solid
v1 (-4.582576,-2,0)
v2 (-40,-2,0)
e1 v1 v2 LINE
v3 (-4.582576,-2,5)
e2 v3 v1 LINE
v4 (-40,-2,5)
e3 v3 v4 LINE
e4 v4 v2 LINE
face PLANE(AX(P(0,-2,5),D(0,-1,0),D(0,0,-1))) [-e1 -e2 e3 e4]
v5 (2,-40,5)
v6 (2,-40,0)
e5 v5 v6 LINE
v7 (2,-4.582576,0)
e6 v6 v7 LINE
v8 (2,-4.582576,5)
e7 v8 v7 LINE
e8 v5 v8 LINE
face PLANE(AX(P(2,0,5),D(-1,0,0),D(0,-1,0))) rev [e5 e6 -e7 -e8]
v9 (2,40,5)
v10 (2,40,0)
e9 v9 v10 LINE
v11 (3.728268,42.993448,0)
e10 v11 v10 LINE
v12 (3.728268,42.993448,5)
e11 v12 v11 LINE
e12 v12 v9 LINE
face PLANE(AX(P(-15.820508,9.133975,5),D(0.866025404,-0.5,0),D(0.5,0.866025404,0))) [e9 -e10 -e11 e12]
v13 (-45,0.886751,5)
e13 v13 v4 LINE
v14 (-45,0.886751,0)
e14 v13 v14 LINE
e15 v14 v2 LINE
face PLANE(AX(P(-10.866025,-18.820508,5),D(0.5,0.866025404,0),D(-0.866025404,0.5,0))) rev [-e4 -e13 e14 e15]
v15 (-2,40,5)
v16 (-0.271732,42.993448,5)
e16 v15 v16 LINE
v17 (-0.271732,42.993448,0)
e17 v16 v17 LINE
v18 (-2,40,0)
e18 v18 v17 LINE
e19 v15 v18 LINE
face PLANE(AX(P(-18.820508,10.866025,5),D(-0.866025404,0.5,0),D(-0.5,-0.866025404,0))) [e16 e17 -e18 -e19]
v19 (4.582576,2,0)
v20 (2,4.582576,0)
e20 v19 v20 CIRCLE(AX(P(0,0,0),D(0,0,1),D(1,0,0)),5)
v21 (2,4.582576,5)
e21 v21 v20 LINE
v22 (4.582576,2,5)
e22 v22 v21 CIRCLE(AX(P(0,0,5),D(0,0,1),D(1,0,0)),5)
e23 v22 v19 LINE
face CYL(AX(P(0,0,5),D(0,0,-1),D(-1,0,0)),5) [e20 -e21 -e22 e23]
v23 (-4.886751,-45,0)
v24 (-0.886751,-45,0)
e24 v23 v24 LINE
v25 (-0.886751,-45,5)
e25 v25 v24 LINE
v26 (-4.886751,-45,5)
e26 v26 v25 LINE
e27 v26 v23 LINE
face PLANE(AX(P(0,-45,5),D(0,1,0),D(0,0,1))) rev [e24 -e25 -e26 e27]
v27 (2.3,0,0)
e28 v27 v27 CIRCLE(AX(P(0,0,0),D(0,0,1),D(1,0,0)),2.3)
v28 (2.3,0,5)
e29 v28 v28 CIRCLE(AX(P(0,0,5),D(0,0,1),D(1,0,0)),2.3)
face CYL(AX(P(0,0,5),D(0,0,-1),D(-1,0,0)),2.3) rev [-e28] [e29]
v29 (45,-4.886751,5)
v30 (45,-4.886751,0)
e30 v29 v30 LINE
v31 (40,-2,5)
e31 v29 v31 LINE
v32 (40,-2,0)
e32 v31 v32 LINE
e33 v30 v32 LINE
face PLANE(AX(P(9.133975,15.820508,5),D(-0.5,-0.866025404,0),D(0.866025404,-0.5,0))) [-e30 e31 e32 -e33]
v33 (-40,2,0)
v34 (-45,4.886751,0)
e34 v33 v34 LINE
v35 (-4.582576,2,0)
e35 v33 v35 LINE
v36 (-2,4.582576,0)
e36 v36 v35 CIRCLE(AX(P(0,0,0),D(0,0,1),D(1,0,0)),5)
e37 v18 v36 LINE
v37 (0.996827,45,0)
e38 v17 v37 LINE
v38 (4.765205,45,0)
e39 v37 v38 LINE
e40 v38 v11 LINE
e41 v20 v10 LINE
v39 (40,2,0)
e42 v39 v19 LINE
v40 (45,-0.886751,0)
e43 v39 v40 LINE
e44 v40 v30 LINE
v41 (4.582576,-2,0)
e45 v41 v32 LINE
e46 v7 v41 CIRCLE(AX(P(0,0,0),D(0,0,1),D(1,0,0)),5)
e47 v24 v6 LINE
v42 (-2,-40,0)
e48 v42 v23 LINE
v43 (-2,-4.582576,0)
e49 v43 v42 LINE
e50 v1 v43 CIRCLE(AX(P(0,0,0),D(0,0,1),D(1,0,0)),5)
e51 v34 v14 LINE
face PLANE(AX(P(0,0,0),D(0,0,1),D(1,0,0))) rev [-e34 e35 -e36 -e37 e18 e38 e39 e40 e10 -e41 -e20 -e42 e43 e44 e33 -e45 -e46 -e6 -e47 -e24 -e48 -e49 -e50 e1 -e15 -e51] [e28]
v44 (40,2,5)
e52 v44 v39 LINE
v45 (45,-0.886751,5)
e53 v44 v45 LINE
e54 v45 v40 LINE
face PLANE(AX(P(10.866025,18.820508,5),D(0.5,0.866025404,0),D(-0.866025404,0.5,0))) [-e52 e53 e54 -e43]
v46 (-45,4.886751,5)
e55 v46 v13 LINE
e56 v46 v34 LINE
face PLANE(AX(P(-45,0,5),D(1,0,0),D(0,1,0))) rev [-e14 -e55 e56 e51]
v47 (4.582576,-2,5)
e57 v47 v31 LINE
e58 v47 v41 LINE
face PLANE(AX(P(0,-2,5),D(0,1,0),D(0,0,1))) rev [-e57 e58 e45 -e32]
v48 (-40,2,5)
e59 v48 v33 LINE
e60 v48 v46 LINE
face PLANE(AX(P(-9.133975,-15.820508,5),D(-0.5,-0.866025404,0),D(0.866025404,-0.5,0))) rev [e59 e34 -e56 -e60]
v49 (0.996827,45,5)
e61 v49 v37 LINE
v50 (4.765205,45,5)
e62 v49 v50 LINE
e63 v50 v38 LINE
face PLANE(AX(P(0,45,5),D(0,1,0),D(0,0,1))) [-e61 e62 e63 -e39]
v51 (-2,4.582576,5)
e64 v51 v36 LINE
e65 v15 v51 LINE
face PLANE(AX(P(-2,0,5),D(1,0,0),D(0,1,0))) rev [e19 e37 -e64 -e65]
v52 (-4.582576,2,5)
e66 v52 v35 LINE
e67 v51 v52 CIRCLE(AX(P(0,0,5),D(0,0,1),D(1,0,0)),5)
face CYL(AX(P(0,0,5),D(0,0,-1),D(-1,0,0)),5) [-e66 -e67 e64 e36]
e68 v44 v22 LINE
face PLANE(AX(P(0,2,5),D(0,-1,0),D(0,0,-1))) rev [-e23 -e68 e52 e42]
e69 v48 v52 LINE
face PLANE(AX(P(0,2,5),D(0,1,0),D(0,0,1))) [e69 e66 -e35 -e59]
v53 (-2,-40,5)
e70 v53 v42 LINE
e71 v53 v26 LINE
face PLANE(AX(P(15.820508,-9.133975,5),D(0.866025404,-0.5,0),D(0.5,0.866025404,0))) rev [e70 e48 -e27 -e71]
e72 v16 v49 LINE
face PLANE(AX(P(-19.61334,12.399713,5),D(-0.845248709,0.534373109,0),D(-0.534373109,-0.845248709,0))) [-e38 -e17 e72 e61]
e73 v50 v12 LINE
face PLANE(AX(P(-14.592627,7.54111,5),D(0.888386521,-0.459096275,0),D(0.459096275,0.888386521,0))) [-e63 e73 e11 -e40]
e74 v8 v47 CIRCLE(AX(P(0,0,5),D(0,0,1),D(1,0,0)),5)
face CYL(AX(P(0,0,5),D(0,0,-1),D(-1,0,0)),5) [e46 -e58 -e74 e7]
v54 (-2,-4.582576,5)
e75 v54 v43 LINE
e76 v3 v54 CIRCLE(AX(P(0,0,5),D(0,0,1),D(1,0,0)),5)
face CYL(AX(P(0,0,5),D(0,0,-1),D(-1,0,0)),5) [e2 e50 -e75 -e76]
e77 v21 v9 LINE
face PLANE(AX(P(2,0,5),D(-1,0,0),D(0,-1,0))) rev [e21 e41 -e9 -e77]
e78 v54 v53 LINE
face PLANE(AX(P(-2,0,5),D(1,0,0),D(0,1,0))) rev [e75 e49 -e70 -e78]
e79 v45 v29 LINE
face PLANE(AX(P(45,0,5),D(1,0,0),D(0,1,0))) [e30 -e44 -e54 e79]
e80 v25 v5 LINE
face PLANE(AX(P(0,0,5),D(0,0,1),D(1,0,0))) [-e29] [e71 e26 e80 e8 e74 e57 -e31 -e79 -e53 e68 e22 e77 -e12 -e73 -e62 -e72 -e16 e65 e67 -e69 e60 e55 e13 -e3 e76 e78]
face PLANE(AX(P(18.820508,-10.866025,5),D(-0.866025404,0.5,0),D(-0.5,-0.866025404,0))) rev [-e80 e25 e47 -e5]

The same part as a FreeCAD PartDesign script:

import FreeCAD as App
import Part
import Sketcher
Q = App.Units.Quantity


def add_polygon(sketch, points):
    """Adds a closed chain of lines whose ends are joined by coincident constraints."""
    first, n = sketch.GeometryCount, len(points)
    for a, b in zip(points, points[1:] + points[:1]):
        sketch.addGeometry(Part.LineSegment(App.Vector(*a, 0), App.Vector(*b, 0)), False)
    for i in range(n):
        sketch.addConstraint(Sketcher.Constraint("Coincident", first + i, 2, first + (i + 1) % n, 1))

doc = App.newDocument("Part")
body = doc.addObject("PartDesign::Body", "Body")

# Sketch on XY plane
sketch1 = body.newObject("Sketcher::SketchObject", "Sketch")
sketch1.AttachmentSupport = (doc.getObject("XY_Plane"), [""])
sketch1.MapMode = "FlatFace"
sketch1.addGeometry([
    Part.Circle(App.Vector(0, 0, 0), App.Vector(0, 0, 1), 5),
    Part.Circle(App.Vector(0, 0, 0), App.Vector(0, 0, 1), 2.3),
], False)
sketch1.addConstraint([
    Sketcher.Constraint("Coincident", 0, 3, -1, 1),
    Sketcher.Constraint("Coincident", 1, 3, -1, 1),
    Sketcher.Constraint("Diameter", 0, 10.0),
    Sketcher.Constraint("Diameter", 1, 4.6),
])
pad1 = body.newObject("PartDesign::Pad", "Pad")
pad1.Profile = sketch1
pad1.Length = 5

# Sketch on XY plane
sketch2 = body.newObject("Sketcher::SketchObject", "Sketch001")
sketch2.AttachmentSupport = (doc.getObject("XY_Plane"), [""])
sketch2.MapMode = "FlatFace"
add_polygon(sketch2, [(2, 4.582576), (2, 40), (3.728268, 42.993448), (4.765205, 45), (0.996827, 45), (-0.271732, 42.993448), (-2, 40), (-2, 4.582576)])  # lines 0-7
add_polygon(sketch2, [(-40, -2), (-4.582576, -2), (-4.582576, 2), (-40, 2), (-45, 4.886751), (-45, 0.886751)])  # lines 8-13
add_polygon(sketch2, [(4.582576, -2), (40, -2), (45, -4.886751), (45, -0.886751), (40, 2), (4.582576, 2)])  # lines 14-19
add_polygon(sketch2, [(2, -40), (2, -4.582576), (-2, -4.582576), (-2, -40), (-4.886751, -45), (-0.886751, -45)])  # lines 20-25
sketch2.addConstraint([
    Sketcher.Constraint("Vertical", 0),
    Sketcher.Constraint("Horizontal", 3),
    Sketcher.Constraint("Vertical", 6),
    Sketcher.Constraint("Horizontal", 7),
    Sketcher.Constraint("Horizontal", 8),
    Sketcher.Constraint("Vertical", 9),
    Sketcher.Constraint("Horizontal", 10),
    Sketcher.Constraint("Vertical", 12),
    Sketcher.Constraint("Horizontal", 14),
    Sketcher.Constraint("Vertical", 16),
    Sketcher.Constraint("Horizontal", 18),
    Sketcher.Constraint("Vertical", 19),
    Sketcher.Constraint("Vertical", 20),
    Sketcher.Constraint("Horizontal", 21),
    Sketcher.Constraint("Vertical", 22),
    Sketcher.Constraint("Horizontal", 24),
    Sketcher.Constraint("Symmetric", 10, 2, 14, 2, -1, 1),
    Sketcher.Constraint("Symmetric", 11, 2, 15, 2, -1, 1),
    Sketcher.Constraint("Symmetric", 13, 2, 17, 2, -1, 1),
    Sketcher.Constraint("Symmetric", 6, 2, 20, 2, -1, 1),
    Sketcher.Constraint("Symmetric", 0, 2, 22, 2, -1, 1),
    Sketcher.Constraint("Symmetric", 0, 2, 5, 2, -2),
    Sketcher.Constraint("Symmetric", 13, 2, 14, 2, -2),
    Sketcher.Constraint("Parallel", 1, 5),
    Sketcher.Constraint("Perpendicular", 5, 11),
    Sketcher.Constraint("Parallel", 11, 13),
    Sketcher.Constraint("Parallel", 15, 17),
    Sketcher.Constraint("Perpendicular", 17, 23),
    Sketcher.Constraint("Parallel", 23, 25),
    Sketcher.Constraint("Horizontal", 1, 2, 4, 2),
    Sketcher.Constraint("Horizontal", 22, 2, 25, 2),
    Sketcher.Constraint("Equal", 10, 14),
    Sketcher.Constraint("Equal", 18, 0),
    Sketcher.Constraint("Equal", 24, 9),
    Sketcher.Constraint("Equal", 17, 23),
    Sketcher.Constraint("DistanceX", 7, 1, 7, 2, 4.0),
    Sketcher.Constraint("Angle", 1, Q("60 deg")),
    Sketcher.Constraint("DistanceY", -1, 1, 0, 2, 40.0),
    Sketcher.Constraint("DistanceY", -1, 1, 2, 2, 45.0),
    Sketcher.Constraint("DistanceX", 10, 2, -1, 1, 40.0),
    Sketcher.Constraint("DistanceX", 11, 2, -1, 1, 45.0),
    Sketcher.Constraint("DistanceX", 3, 2, 3, 1, 3.768378),
    Sketcher.Constraint("Distance", 4, 2.373919),
    Sketcher.Constraint("DistanceX", 8, 1, 8, 2, 35.417424),
    Sketcher.Constraint("DistanceX", 3, 2, 1, 2, 2.731441),
])
pad2 = body.newObject("PartDesign::Pad", "Pad001")
pad2.Profile = sketch2
pad2.Length = 5

doc.recompute()
